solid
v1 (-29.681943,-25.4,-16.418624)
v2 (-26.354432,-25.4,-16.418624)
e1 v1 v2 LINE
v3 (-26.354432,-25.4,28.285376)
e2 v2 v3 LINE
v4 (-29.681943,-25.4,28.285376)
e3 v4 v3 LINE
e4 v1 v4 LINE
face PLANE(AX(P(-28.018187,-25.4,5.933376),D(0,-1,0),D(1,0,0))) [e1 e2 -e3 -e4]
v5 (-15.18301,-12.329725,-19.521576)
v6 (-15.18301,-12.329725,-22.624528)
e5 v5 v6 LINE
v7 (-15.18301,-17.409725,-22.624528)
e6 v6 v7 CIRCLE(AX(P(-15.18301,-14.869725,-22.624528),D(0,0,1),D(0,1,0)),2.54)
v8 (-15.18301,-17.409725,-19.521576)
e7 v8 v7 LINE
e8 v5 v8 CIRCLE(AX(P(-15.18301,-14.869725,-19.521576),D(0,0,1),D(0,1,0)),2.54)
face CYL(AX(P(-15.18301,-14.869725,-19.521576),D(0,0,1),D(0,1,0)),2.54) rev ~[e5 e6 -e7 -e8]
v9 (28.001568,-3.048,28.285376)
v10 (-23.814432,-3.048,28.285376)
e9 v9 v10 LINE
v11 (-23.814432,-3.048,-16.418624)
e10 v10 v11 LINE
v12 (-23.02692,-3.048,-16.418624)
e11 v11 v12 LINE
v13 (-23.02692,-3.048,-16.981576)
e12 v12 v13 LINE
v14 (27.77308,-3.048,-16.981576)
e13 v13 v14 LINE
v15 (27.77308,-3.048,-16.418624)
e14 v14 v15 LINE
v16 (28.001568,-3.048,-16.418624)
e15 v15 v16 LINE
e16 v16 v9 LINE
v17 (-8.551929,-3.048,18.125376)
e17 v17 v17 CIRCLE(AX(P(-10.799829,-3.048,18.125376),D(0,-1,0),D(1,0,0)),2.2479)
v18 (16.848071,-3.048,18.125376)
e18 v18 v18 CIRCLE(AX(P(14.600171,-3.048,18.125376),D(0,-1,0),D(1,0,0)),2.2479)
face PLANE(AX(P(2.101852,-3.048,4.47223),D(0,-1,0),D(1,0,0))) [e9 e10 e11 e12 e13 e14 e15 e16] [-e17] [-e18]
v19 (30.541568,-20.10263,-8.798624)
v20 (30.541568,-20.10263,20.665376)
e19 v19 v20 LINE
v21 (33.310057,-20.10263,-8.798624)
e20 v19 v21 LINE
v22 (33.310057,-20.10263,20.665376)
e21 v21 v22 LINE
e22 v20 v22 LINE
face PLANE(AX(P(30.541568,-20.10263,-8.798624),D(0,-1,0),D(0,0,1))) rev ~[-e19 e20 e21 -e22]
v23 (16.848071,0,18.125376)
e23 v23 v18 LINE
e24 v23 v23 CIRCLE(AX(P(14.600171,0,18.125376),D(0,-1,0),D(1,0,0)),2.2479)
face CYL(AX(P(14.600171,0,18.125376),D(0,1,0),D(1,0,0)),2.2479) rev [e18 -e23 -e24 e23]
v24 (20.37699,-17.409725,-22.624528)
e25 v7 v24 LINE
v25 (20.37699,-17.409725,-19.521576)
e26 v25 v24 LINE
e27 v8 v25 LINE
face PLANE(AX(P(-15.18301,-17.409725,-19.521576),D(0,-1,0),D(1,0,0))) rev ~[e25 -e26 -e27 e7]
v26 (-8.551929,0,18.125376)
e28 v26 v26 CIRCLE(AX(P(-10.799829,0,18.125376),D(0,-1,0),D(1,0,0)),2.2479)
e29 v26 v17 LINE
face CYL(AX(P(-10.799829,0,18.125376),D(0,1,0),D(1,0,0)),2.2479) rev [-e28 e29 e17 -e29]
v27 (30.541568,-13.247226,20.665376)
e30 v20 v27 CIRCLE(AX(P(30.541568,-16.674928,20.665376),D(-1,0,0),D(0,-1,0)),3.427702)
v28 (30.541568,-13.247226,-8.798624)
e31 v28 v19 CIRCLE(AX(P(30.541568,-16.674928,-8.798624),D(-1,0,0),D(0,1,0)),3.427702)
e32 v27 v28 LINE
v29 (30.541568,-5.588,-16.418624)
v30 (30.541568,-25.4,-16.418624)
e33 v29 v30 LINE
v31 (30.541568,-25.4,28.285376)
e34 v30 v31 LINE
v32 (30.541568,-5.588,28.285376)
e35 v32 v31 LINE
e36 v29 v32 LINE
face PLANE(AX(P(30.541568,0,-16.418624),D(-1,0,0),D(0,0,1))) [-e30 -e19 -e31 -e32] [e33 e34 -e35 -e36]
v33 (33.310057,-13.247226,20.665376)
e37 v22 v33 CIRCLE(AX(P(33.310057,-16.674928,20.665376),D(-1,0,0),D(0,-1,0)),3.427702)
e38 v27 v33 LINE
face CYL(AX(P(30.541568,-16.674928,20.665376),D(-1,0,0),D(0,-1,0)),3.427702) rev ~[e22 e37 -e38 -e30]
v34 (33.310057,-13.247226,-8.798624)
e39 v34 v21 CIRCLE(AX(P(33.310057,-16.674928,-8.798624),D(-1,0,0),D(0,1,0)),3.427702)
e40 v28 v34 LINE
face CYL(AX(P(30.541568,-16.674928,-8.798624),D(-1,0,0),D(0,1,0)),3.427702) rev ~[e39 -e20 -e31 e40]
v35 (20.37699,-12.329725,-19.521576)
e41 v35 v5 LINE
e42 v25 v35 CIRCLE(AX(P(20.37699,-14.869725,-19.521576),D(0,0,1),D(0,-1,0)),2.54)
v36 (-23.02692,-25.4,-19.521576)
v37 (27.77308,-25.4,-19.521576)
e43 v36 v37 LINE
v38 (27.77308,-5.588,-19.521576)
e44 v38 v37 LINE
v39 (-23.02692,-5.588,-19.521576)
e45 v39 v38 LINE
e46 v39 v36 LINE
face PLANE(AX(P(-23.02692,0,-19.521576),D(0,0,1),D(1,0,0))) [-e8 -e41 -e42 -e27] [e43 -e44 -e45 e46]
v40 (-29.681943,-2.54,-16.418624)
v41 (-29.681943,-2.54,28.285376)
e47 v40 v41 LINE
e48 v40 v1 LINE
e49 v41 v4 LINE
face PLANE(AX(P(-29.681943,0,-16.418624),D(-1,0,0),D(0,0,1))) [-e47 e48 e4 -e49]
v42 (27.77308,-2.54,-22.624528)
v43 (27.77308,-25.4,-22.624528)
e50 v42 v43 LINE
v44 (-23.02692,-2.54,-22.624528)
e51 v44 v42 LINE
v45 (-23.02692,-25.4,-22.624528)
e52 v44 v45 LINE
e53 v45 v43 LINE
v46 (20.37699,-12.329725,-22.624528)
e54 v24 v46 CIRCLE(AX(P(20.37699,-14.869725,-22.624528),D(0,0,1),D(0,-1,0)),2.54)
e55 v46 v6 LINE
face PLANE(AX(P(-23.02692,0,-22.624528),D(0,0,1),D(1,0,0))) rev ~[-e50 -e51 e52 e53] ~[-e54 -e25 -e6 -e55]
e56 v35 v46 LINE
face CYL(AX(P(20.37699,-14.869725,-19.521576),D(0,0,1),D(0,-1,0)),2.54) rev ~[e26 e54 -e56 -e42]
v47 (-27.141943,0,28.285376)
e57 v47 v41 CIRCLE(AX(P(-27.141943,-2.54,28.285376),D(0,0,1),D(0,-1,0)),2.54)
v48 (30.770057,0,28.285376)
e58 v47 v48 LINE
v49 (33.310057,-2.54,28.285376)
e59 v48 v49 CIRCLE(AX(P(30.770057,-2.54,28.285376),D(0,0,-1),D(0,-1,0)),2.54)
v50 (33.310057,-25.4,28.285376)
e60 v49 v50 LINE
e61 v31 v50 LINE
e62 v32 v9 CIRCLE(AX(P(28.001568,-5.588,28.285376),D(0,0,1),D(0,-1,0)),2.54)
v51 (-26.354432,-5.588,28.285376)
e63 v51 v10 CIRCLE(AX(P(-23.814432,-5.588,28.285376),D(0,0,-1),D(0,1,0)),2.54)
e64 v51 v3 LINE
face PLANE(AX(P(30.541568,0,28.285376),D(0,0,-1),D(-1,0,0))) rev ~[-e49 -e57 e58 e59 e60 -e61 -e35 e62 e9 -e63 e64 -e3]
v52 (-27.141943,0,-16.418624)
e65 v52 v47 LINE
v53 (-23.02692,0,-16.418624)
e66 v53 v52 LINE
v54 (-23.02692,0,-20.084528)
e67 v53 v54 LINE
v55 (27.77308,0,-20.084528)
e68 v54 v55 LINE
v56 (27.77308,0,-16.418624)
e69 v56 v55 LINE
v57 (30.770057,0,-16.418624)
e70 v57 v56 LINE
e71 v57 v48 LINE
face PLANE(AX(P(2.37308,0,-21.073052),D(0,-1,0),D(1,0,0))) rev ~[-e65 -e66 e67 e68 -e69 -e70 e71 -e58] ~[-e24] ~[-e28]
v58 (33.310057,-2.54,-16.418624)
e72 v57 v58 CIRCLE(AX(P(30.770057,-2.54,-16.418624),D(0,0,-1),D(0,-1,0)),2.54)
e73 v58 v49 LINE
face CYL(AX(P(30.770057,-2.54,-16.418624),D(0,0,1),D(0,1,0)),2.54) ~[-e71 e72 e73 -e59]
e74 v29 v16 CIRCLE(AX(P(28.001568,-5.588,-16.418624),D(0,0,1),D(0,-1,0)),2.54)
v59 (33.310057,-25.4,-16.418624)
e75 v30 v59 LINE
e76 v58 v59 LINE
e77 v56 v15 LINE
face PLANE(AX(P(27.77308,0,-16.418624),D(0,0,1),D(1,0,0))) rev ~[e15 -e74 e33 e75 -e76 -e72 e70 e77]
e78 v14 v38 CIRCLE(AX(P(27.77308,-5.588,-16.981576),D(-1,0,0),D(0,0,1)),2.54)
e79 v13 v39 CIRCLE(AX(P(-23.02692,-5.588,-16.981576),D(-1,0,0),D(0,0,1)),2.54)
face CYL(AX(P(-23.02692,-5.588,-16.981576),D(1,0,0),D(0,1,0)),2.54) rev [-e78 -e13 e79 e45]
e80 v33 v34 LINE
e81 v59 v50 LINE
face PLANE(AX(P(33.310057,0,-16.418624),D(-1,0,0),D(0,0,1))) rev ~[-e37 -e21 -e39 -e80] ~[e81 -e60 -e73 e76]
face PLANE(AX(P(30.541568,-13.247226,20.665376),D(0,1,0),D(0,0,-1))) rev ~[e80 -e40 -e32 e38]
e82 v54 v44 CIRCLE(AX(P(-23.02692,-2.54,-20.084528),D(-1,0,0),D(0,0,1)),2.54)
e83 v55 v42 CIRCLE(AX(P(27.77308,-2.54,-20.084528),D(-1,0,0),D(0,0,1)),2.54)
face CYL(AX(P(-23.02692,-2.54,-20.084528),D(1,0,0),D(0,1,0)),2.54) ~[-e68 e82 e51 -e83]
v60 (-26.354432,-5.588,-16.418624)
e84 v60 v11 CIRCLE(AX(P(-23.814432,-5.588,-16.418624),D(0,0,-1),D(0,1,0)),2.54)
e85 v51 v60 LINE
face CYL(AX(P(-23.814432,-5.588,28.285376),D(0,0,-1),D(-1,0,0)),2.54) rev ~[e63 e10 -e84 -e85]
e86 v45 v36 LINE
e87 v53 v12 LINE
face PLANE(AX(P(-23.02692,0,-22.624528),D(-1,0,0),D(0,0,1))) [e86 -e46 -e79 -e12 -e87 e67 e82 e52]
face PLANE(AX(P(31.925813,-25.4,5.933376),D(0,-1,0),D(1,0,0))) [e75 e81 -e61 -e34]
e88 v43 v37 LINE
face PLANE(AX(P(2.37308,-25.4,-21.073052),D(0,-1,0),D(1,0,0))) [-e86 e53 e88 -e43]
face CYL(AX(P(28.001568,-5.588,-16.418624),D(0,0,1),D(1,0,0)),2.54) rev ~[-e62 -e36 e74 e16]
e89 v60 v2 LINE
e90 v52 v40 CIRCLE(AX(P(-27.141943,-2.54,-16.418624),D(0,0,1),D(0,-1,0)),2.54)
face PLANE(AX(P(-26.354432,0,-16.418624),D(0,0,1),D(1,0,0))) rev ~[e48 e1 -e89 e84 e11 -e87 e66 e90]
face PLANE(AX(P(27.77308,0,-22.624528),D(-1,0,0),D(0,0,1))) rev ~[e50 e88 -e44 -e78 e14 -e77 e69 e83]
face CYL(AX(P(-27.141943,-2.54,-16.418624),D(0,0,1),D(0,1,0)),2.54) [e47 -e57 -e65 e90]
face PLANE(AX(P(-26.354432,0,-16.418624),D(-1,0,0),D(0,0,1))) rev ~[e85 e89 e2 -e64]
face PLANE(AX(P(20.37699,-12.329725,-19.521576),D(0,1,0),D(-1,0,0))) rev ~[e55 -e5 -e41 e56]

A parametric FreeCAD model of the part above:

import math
import FreeCAD as App
import Part
import Sketcher
from FreeCAD import Vector
Q = App.Units.Quantity


def edges_at(feature, points):
    """Names of the edges that pass closest to the given points."""
    edges = feature.Shape.Edges
    near = lambda p: min(range(len(edges)), key=lambda i: edges[i].distToShape(Part.Vertex(*p))[0])
    return sorted({f"Edge{near(p) + 1}" for p in points})

doc = App.newDocument("Part")
body = doc.addObject("PartDesign::Body", "Body")

# Sketch on XZ plane
sketch1 = doc.addObject("Sketcher::SketchObject", "Sketch")
body.addObject(sketch1)
sketch1.AttachmentSupport = (doc.XZ_Plane, [""])
sketch1.MapMode = "FlatFace"
sketch1.addGeometry([
    Part.LineSegment(Vector(30.5, 28.3, 0), Vector(-26.4, 28.3, 0)),  # 0
    Part.LineSegment(Vector(-26.4, 28.3, 0), Vector(-26.4, -16.4, 0)),  # 1
    Part.LineSegment(Vector(-26.4, -16.4, 0), Vector(-23, -16.4, 0)),  # 2
    Part.LineSegment(Vector(-23, -16.4, 0), Vector(-23, -19.5, 0)),  # 3
    Part.LineSegment(Vector(-23, -19.5, 0), Vector(27.8, -19.5, 0)),  # 4
    Part.LineSegment(Vector(27.8, -19.5, 0), Vector(27.8, -16.4, 0)),  # 5
    Part.LineSegment(Vector(27.8, -16.4, 0), Vector(30.5, -16.4, 0)),  # 6
    Part.LineSegment(Vector(30.5, -16.4, 0), Vector(30.5, 28.3, 0)),  # 7
    Part.Circle(Vector(-10.8, 18.1, 0), Vector(0, 0, 1), 2.2),  # 8
    Part.Circle(Vector(14.6, 18.1, 0), Vector(0, 0, 1), 2.2),  # 9
], False)
sketch1.addConstraint([
    Sketcher.Constraint("Coincident", 0, 2, 1, 1),
    Sketcher.Constraint("Coincident", 1, 2, 2, 1),
    Sketcher.Constraint("Coincident", 2, 2, 3, 1),
    Sketcher.Constraint("Coincident", 3, 2, 4, 1),
    Sketcher.Constraint("Coincident", 4, 2, 5, 1),
    Sketcher.Constraint("Coincident", 5, 2, 6, 1),
    Sketcher.Constraint("Coincident", 6, 2, 7, 1),
    Sketcher.Constraint("Coincident", 7, 2, 0, 1),
    Sketcher.Constraint("Horizontal", 0),
    Sketcher.Constraint("Vertical", 1),
    Sketcher.Constraint("Horizontal", 2),
    Sketcher.Constraint("Vertical", 3),
    Sketcher.Constraint("Horizontal", 4),
    Sketcher.Constraint("Vertical", 5),
    Sketcher.Constraint("Horizontal", 6),
    Sketcher.Constraint("Vertical", 7),
    Sketcher.Constraint("Equal", 8, 9),
    Sketcher.Constraint("Horizontal", 8, 3, 9, 3),
    Sketcher.Constraint("Horizontal", 2, 2, 5, 2),
    Sketcher.Constraint("DistanceX", 4, 1, 4, 2, Q("2 in")),
    Sketcher.Constraint("Diameter", 8, Q("0.177 in")),
    Sketcher.Constraint("DistanceX", 8, 3, 9, 3, Q("1 in")),
    Sketcher.Constraint("DistanceX", 0, 2, 0, 1, Q("2.24 in")),
    Sketcher.Constraint("DistanceY", 1, 2, 1, 1, Q("1.76 in")),
    Sketcher.Constraint("DistanceY", 8, 3, 0, 2, Q("0.4 in")),
    Sketcher.Constraint("DistanceX", 2, 1, 2, 2, Q("3.327511 mm")),
    Sketcher.Constraint("DistanceY", 3, 2, 3, 1, Q("3.102952 mm")),
    Sketcher.Constraint("DistanceX", 8, 3, -1, 1, Q("10.799829 mm")),
    Sketcher.Constraint("DistanceX", 0, 2, -1, 1, Q("26.354432 mm")),
    Sketcher.Constraint("DistanceY", -1, 1, 8, 3, Q("18.125376 mm")),
])
pad1 = doc.addObject("PartDesign::Pad", "Pad")
body.addObject(pad1)
pad1.Profile = sketch1
pad1.Length = Q("0.12 in")

# Sketch on XZ plane
sketch2 = doc.addObject("Sketcher::SketchObject", "Sketch001")
body.addObject(sketch2)
sketch2.AttachmentSupport = (doc.XZ_Plane, [""])
sketch2.MapMode = "FlatFace"
sketch2.addGeometry([
    Part.LineSegment(Vector(-23, -19.5, 0), Vector(-23, -22.6, 0)),  # 0
    Part.LineSegment(Vector(-23, -22.6, 0), Vector(27.8, -22.6, 0)),  # 1
    Part.LineSegment(Vector(27.8, -22.6, 0), Vector(27.8, -19.5, 0)),  # 2
    Part.LineSegment(Vector(27.8, -19.5, 0), Vector(-23, -19.5, 0)),  # 3
    Part.LineSegment(Vector(-29.7, 28.3, 0), Vector(-29.7, -16.4, 0)),  # 4
    Part.LineSegment(Vector(-29.7, -16.4, 0), Vector(-26.4, -16.4, 0)),  # 5
    Part.LineSegment(Vector(-26.4, -16.4, 0), Vector(-26.4, 28.3, 0)),  # 6
    Part.LineSegment(Vector(-26.4, 28.3, 0), Vector(-29.7, 28.3, 0)),  # 7
    Part.LineSegment(Vector(30.5, 28.3, 0), Vector(30.5, -16.4, 0)),  # 8
    Part.LineSegment(Vector(30.5, -16.4, 0), Vector(33.3, -16.4, 0)),  # 9
    Part.LineSegment(Vector(33.3, -16.4, 0), Vector(33.3, 28.3, 0)),  # 10
    Part.LineSegment(Vector(33.3, 28.3, 0), Vector(30.5, 28.3, 0)),  # 11
], False)
sketch2.addConstraint([
    Sketcher.Constraint("Coincident", 0, 2, 1, 1),
    Sketcher.Constraint("Coincident", 1, 2, 2, 1),
    Sketcher.Constraint("Coincident", 2, 2, 3, 1),
    Sketcher.Constraint("Coincident", 3, 2, 0, 1),
    Sketcher.Constraint("Coincident", 4, 2, 5, 1),
    Sketcher.Constraint("Coincident", 5, 2, 6, 1),
    Sketcher.Constraint("Coincident", 6, 2, 7, 1),
    Sketcher.Constraint("Coincident", 7, 2, 4, 1),
    Sketcher.Constraint("Coincident", 8, 2, 9, 1),
    Sketcher.Constraint("Coincident", 9, 2, 10, 1),
    Sketcher.Constraint("Coincident", 10, 2, 11, 1),
    Sketcher.Constraint("Coincident", 11, 2, 8, 1),
    Sketcher.Constraint("Vertical", 0),
    Sketcher.Constraint("Horizontal", 1),
    Sketcher.Constraint("Vertical", 2),
    Sketcher.Constraint("Horizontal", 3),
    Sketcher.Constraint("Vertical", 4),
    Sketcher.Constraint("Horizontal", 5),
    Sketcher.Constraint("Vertical", 6),
    Sketcher.Constraint("Horizontal", 7),
    Sketcher.Constraint("Vertical", 8),
    Sketcher.Constraint("Horizontal", 9),
    Sketcher.Constraint("Vertical", 10),
    Sketcher.Constraint("Horizontal", 11),
    Sketcher.Constraint("Horizontal", 5, 2, 8, 2),
    Sketcher.Constraint("Horizontal", 7, 2, 10, 2),
    Sketcher.Constraint("DistanceX", 1, 1, 1, 2, Q("2 in")),
    Sketcher.Constraint("DistanceY", 4, 2, 4, 1, Q("1.76 in")),
    Sketcher.Constraint("DistanceX", 5, 2, 8, 2, Q("2.24 in")),
    Sketcher.Constraint("DistanceX", 5, 1, 5, 2, Q("3.327511 mm")),
    Sketcher.Constraint("DistanceX", 9, 1, 9, 2, Q("2.768489 mm")),
    Sketcher.Constraint("DistanceY", 0, 2, 0, 1, Q("3.102952 mm")),
    Sketcher.Constraint("DistanceX", 0, 2, -1, 1, Q("23.02692 mm")),
    Sketcher.Constraint("DistanceX", 5, 2, -1, 1, Q("26.354432 mm")),
    Sketcher.Constraint("DistanceY", 0, 2, -1, 1, Q("22.624528 mm")),
    Sketcher.Constraint("DistanceY", 4, 2, -1, 1, Q("16.418624 mm")),
])
pad2 = doc.addObject("PartDesign::Pad", "Pad001")
body.addObject(pad2)
pad2.Profile = sketch2
pad2.Length = Q("1 in")
doc.recompute()

fillet = doc.addObject("PartDesign::Fillet", "Fillet")
body.addObject(fillet)
fillet.Base = (pad2, edges_at(pad2, [
    (2.373, -3.048, -19.522),
    (2.373, 0, -22.625),
    (33.31, 0, 5.933),
    (30.542, -3.048, 5.933),
    (-26.354, -3.048, 5.933),
    (-29.682, 0, 5.933),
]))
fillet.Radius = Q("0.1 in")

# Sketch on YZ plane
sketch3 = doc.addObject("Sketcher::SketchObject", "Sketch002")
body.addObject(sketch3)
sketch3.AttachmentSupport = (doc.YZ_Plane, [""])
sketch3.MapMode = "FlatFace"
sketch3.AttachmentOffset = App.Placement(Vector(0, 0, 30.541568), App.Rotation())
sketch3.addGeometry([
    Part.ArcOfCircle(Part.Circle(Vector(-16.7, 20.7, 0), Vector(0, 0, 1), 3.4), math.radians(0), math.radians(180)),
    Part.LineSegment(Vector(-13.2, 20.7, 0), Vector(-13.2, -8.8, 0)),
    Part.ArcOfCircle(Part.Circle(Vector(-16.7, -8.8, 0), Vector(0, 0, 1), 3.4), math.radians(180), math.radians(360)),
    Part.LineSegment(Vector(-20.1, -8.8, 0), Vector(-20.1, 20.7, 0)),
], False)
sketch3.addConstraint([
    Sketcher.Constraint("Tangent", 0, 1, 1, 1),
    Sketcher.Constraint("Tangent", 1, 2, 2, 2),
    Sketcher.Constraint("Tangent", 2, 1, 3, 1),
    Sketcher.Constraint("Tangent", 3, 2, 0, 2),
    Sketcher.Constraint("Vertical", 1),
    Sketcher.Constraint("Vertical", 3),
    Sketcher.Constraint("DistanceY", 1, 2, 1, 1, Q("1.16 in")),
    Sketcher.Constraint("Radius", 0, Q("3.427702 mm")),
    Sketcher.Constraint("DistanceX", 0, 3, -1, 1, Q("16.674928 mm")),
    Sketcher.Constraint("DistanceY", -1, 1, 0, 3, Q("20.665376 mm")),
])
pocket1 = doc.addObject("PartDesign::Pocket", "Pocket")
body.addObject(pocket1)
pocket1.Profile = sketch3
pocket1.Length = Q("1 in")
pocket1.Reversed = True

# Sketch on XY plane
sketch4 = doc.addObject("Sketcher::SketchObject", "Sketch003")
body.addObject(sketch4)
sketch4.AttachmentSupport = (doc.XY_Plane, [""])
sketch4.MapMode = "FlatFace"
sketch4.AttachmentOffset = App.Placement(Vector(0, 0, -19.521576), App.Rotation())
sketch4.addGeometry([
    Part.ArcOfCircle(Part.Circle(Vector(-15.2, -14.9, 0), Vector(0, 0, 1), 2.5), math.radians(90), math.radians(270)),
    Part.LineSegment(Vector(-15.2, -17.4, 0), Vector(20.4, -17.4, 0)),
    Part.ArcOfCircle(Part.Circle(Vector(20.4, -14.9, 0), Vector(0, 0, 1), 2.5), math.radians(-90), math.radians(90)),
    Part.LineSegment(Vector(20.4, -12.3, 0), Vector(-15.2, -12.3, 0)),
], False)
sketch4.addConstraint([
    Sketcher.Constraint("Tangent", 0, 2, 1, 1),
    Sketcher.Constraint("Tangent", 1, 2, 2, 1),
    Sketcher.Constraint("Tangent", 2, 2, 3, 1),
    Sketcher.Constraint("Tangent", 3, 2, 0, 1),
    Sketcher.Constraint("Horizontal", 1),
    Sketcher.Constraint("Horizontal", 3),
    Sketcher.Constraint("Radius", 0, Q("0.1 in")),
    Sketcher.Constraint("DistanceX", 1, 1, 1, 2, Q("1.4 in")),
    Sketcher.Constraint("DistanceX", 0, 3, -1, 1, Q("15.18301 mm")),
    Sketcher.Constraint("DistanceY", 0, 3, -1, 1, Q("14.869725 mm")),
])
pocket2 = doc.addObject("PartDesign::Pocket", "Pocket001")
body.addObject(pocket2)
pocket2.Profile = sketch4
pocket2.Length = Q("1 in")

doc.recompute()
